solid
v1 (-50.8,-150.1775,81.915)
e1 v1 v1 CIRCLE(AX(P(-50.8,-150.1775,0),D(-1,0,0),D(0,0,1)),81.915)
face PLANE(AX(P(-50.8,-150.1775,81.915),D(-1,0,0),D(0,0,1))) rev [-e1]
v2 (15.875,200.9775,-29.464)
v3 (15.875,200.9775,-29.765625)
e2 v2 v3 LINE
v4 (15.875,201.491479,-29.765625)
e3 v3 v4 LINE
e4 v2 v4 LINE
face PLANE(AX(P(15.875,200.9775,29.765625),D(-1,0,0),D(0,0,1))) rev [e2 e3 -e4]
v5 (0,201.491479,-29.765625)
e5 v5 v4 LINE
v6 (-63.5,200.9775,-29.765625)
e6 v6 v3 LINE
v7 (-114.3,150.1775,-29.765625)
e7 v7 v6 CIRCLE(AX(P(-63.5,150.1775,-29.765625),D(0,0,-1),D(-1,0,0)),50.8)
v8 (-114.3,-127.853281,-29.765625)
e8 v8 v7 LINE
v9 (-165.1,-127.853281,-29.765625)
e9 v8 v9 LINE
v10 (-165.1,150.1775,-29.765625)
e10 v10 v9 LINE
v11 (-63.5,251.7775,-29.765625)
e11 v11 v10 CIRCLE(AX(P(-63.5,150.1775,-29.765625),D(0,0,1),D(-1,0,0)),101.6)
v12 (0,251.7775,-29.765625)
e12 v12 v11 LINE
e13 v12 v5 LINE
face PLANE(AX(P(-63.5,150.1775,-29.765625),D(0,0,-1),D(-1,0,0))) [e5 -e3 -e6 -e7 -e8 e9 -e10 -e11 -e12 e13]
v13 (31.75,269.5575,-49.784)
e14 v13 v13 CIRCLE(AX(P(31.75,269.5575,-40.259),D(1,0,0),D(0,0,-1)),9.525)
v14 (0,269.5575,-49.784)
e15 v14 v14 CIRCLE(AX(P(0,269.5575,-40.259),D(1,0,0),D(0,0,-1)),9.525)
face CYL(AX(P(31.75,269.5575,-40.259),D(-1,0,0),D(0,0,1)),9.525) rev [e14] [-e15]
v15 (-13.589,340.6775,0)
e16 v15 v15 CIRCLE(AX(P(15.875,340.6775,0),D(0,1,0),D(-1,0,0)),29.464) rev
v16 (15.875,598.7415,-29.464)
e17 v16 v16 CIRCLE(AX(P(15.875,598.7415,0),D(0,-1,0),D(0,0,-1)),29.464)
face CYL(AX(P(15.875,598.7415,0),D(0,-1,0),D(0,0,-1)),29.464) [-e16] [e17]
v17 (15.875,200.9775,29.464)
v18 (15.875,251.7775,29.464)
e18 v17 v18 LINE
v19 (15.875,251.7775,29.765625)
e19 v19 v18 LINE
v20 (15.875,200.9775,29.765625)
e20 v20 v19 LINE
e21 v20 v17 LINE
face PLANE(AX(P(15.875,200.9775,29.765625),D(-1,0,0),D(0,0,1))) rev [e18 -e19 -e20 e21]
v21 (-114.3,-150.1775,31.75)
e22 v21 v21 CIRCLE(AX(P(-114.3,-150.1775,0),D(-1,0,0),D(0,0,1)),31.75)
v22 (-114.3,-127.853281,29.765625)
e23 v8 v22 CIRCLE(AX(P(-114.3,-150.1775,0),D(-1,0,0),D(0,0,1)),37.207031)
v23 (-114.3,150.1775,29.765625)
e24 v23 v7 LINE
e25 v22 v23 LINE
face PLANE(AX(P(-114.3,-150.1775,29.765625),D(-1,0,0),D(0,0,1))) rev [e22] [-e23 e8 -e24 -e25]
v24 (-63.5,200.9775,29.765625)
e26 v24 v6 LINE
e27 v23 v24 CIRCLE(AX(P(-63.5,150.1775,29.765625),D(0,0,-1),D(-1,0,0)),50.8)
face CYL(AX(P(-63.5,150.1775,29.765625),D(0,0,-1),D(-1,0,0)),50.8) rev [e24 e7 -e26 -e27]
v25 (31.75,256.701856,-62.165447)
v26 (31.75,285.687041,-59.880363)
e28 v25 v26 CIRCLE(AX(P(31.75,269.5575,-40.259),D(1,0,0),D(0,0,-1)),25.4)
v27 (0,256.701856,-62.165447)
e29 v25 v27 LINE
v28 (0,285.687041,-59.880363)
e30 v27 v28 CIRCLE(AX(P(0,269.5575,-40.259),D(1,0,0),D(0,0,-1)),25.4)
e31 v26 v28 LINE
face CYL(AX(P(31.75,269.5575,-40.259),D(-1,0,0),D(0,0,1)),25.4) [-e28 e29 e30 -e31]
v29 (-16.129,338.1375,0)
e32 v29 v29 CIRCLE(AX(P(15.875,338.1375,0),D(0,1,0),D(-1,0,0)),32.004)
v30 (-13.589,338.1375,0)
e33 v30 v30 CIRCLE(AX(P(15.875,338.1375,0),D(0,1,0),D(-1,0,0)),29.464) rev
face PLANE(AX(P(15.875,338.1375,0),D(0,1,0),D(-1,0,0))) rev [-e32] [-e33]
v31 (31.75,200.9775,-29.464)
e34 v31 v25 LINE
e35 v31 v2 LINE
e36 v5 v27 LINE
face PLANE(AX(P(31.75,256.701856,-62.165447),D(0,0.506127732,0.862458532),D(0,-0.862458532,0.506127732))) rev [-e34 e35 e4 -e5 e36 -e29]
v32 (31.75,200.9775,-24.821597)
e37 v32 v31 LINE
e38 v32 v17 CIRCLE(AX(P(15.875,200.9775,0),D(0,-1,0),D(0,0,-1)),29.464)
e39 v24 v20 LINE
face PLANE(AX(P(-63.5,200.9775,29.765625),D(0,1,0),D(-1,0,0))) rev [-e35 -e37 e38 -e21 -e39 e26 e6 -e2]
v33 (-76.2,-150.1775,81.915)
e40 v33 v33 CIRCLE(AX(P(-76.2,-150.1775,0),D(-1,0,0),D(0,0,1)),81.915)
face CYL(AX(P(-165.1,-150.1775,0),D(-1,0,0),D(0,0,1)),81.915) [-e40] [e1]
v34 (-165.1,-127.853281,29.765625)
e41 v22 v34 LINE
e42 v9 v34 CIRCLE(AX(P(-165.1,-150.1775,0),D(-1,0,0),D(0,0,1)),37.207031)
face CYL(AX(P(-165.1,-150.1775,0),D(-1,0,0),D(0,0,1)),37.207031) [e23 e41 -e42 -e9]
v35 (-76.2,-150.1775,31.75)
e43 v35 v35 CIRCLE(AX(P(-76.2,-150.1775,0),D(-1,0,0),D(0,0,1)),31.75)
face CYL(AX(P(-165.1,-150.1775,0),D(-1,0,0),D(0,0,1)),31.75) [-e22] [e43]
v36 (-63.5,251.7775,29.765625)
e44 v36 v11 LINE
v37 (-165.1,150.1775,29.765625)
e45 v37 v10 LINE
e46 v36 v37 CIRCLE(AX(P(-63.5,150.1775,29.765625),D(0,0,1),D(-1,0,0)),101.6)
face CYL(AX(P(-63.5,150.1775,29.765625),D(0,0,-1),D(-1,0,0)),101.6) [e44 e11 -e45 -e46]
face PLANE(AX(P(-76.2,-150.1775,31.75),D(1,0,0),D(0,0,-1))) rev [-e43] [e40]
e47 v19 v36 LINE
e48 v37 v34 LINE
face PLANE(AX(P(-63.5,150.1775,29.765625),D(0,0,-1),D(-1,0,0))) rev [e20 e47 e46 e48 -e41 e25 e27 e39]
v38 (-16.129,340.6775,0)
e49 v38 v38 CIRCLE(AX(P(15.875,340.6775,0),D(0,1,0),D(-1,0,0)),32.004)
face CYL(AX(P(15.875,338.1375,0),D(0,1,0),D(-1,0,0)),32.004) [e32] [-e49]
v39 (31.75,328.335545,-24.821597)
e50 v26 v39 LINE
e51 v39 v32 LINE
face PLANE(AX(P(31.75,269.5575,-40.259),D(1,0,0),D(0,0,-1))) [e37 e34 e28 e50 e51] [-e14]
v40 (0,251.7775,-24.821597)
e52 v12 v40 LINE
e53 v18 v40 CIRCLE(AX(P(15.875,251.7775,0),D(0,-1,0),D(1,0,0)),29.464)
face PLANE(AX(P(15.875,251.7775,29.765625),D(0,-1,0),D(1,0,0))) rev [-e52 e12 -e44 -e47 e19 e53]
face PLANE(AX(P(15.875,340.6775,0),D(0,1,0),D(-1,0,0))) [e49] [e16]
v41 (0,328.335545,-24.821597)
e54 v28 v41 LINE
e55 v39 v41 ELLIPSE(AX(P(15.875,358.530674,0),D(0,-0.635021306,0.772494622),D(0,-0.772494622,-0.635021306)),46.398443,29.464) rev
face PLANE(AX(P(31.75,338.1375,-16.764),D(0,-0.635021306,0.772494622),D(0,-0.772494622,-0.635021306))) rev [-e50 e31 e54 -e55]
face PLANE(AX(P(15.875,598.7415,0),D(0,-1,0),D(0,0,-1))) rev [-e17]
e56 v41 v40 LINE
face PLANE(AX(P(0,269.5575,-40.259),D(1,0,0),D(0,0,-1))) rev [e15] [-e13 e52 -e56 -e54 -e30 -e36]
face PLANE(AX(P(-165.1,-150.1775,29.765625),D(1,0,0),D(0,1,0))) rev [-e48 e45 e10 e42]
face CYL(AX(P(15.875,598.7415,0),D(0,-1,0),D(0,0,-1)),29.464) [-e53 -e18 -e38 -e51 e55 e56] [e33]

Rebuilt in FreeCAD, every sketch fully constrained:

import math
import FreeCAD as App
import Part
import Sketcher
from FreeCAD import Vector
Q = App.Units.Quantity

doc = App.newDocument("Part")
body = doc.addObject("PartDesign::Body", "Body")

# Sketch on XY plane
sketch1 = body.newObject("Sketcher::SketchObject", "Sketch")
sketch1.AttachmentSupport = (doc.getObject("XY_Plane"), [""])
sketch1.MapMode = "FlatFace"
sketch1.addGeometry(Part.LineSegment(Vector(-114, -150, 0), Vector(-114, 150, 0)), False)
sketch1.addGeometry(Part.ArcOfCircle(Part.Circle(Vector(-63, 150, 0), Vector(0, 0, 1), 51), math.radians(90), math.radians(180)), False)
sketch1.addGeometry(Part.LineSegment(Vector(-64, 201, 0), Vector(16, 201, 0)), False)
sketch1.addGeometry(Part.LineSegment(Vector(16, 201, 0), Vector(16, 252, 0)), False)
sketch1.addGeometry(Part.LineSegment(Vector(16, 252, 0), Vector(-64, 252, 0)), False)
sketch1.addGeometry(Part.ArcOfCircle(Part.Circle(Vector(-64, 150, 0), Vector(0, 0, 1), 102), math.radians(90), math.radians(180)), False)
sketch1.addGeometry(Part.LineSegment(Vector(-165, 150, 0), Vector(-165, -150, 0)), False)
sketch1.addGeometry(Part.LineSegment(Vector(-165, -150, 0), Vector(-114, -150, 0)), False)
sketch1.addConstraint(Sketcher.Constraint("Tangent", 0, 2, 1, 2))
sketch1.addConstraint(Sketcher.Constraint("Tangent", 1, 1, 2, 1))
sketch1.addConstraint(Sketcher.Constraint("Coincident", 2, 2, 3, 1))
sketch1.addConstraint(Sketcher.Constraint("Coincident", 3, 2, 4, 1))
sketch1.addConstraint(Sketcher.Constraint("Tangent", 4, 2, 5, 1))
sketch1.addConstraint(Sketcher.Constraint("Tangent", 5, 2, 6, 1))
sketch1.addConstraint(Sketcher.Constraint("Coincident", 6, 2, 7, 1))
sketch1.addConstraint(Sketcher.Constraint("Coincident", 7, 2, 0, 1))
sketch1.addConstraint(Sketcher.Constraint("Vertical", 0))
sketch1.addConstraint(Sketcher.Constraint("Horizontal", 2))
sketch1.addConstraint(Sketcher.Constraint("Vertical", 3))
sketch1.addConstraint(Sketcher.Constraint("Horizontal", 4))
sketch1.addConstraint(Sketcher.Constraint("Vertical", 6))
sketch1.addConstraint(Sketcher.Constraint("Horizontal", 7))
sketch1.addConstraint(Sketcher.Constraint("Coincident", 5, 3, 1, 3))
sketch1.addConstraint(Sketcher.Constraint("Radius", 1, Q("2 in")))
sketch1.addConstraint(Sketcher.Constraint("Radius", 5, Q("4 in")))
sketch1.addConstraint(Sketcher.Constraint("DistanceX", 1, 3, -1, 1, Q("2.5 in")))
sketch1.addConstraint(Sketcher.Constraint("DistanceX", 2, 1, 2, 2, Q("3.125 in")))
sketch1.addConstraint(Sketcher.Constraint("DistanceY", 0, 1, 0, 2, Q("11.825 in")))
sketch1.addConstraint(Sketcher.Constraint("DistanceY", -1, 1, 1, 3, Q("5.9125 in")))
pad1 = body.newObject("PartDesign::Pad", "Pad")
pad1.Profile = sketch1
pad1.Length = Q("2.34375 in")
pad1.Midplane = True

# Sketch on XZ plane
sketch2 = body.newObject("Sketcher::SketchObject", "Sketch001")
sketch2.AttachmentSupport = (doc.getObject("XZ_Plane"), [""])
sketch2.MapMode = "FlatFace"
sketch2.AttachmentOffset = App.Placement(Vector(0, 0, 5.9125 * 25.4), App.Rotation())
sketch2.addGeometry(Part.LineSegment(Vector(-165, 0, 0), Vector(-51, 0, 0)), False)
sketch2.addGeometry(Part.LineSegment(Vector(-51, 0, 0), Vector(-51, 82, 0)), False)
sketch2.addGeometry(Part.LineSegment(Vector(-51, 82, 0), Vector(-76, 82, 0)), False)
sketch2.addGeometry(Part.LineSegment(Vector(-76, 82, 0), Vector(-76, 32, 0)), False)
sketch2.addGeometry(Part.LineSegment(Vector(-76, 32, 0), Vector(-114, 32, 0)), False)
sketch2.addGeometry(Part.LineSegment(Vector(-114, 32, 0), Vector(-114, 37, 0)), False)
sketch2.addGeometry(Part.LineSegment(Vector(-114, 37, 0), Vector(-165, 37, 0)), False)
sketch2.addGeometry(Part.LineSegment(Vector(-165, 37, 0), Vector(-165, 0, 0)), False)
sketch2.addConstraint(Sketcher.Constraint("Coincident", 0, 2, 1, 1))
sketch2.addConstraint(Sketcher.Constraint("Coincident", 1, 2, 2, 1))
sketch2.addConstraint(Sketcher.Constraint("Coincident", 2, 2, 3, 1))
sketch2.addConstraint(Sketcher.Constraint("Coincident", 3, 2, 4, 1))
sketch2.addConstraint(Sketcher.Constraint("Coincident", 4, 2, 5, 1))
sketch2.addConstraint(Sketcher.Constraint("Coincident", 5, 2, 6, 1))
sketch2.addConstraint(Sketcher.Constraint("Coincident", 6, 2, 7, 1))
sketch2.addConstraint(Sketcher.Constraint("Coincident", 7, 2, 0, 1))
sketch2.addConstraint(Sketcher.Constraint("Horizontal", 0))
sketch2.addConstraint(Sketcher.Constraint("Vertical", 1))
sketch2.addConstraint(Sketcher.Constraint("Horizontal", 2))
sketch2.addConstraint(Sketcher.Constraint("Vertical", 3))
sketch2.addConstraint(Sketcher.Constraint("Horizontal", 4))
sketch2.addConstraint(Sketcher.Constraint("Vertical", 5))
sketch2.addConstraint(Sketcher.Constraint("Horizontal", 6))
sketch2.addConstraint(Sketcher.Constraint("Vertical", 7))
sketch2.addConstraint(Sketcher.Constraint("PointOnObject", 0, 2, -1))
sketch2.addConstraint(Sketcher.Constraint("DistanceX", 2, 2, 2, 1, Q("1 in")))
sketch2.addConstraint(Sketcher.Constraint("DistanceX", 6, 2, 6, 1, Q("2 in")))
sketch2.addConstraint(Sketcher.Constraint("DistanceX", 0, 1, 0, 2, Q("4.5 in")))
sketch2.addConstraint(Sketcher.Constraint("DistanceX", 0, 2, -1, 1, Q("2 in")))
sketch2.addConstraint(Sketcher.Constraint("DistanceY", 1, 1, 1, 2, Q("3.225 in")))
sketch2.addConstraint(Sketcher.Constraint("DistanceY", 3, 2, 3, 1, Q("1.975 in")))
sketch2.addConstraint(Sketcher.Constraint("DistanceY", 5, 1, 5, 2, 5.457031))
revolution = body.newObject("PartDesign::Revolution", "Revolution")
revolution.Profile = sketch2
revolution.ReferenceAxis = (sketch2, ["H_Axis"])
revolution.Angle = 360

# Sketch on XZ plane
sketch3 = body.newObject("Sketcher::SketchObject", "Sketch002")
sketch3.AttachmentSupport = (doc.getObject("XZ_Plane"), [""])
sketch3.MapMode = "FlatFace"
sketch3.AttachmentOffset = App.Placement(Vector(0, 0, -7.9125 * 25.4), App.Rotation())
sketch3.addGeometry(Part.Circle(Vector(16, 0, 0), Vector(0, 0, 1), 29), False)
sketch3.addConstraint(Sketcher.Constraint("PointOnObject", 0, 3, -1))
sketch3.addConstraint(Sketcher.Constraint("Diameter", 0, Q("2.32 in")))
sketch3.addConstraint(Sketcher.Constraint("DistanceX", -1, 1, 0, 3, Q("0.625 in")))
pad2 = body.newObject("PartDesign::Pad", "Pad001")
pad2.Profile = sketch3
pad2.Length = Q("15.66 in")
pad2.Reversed = True

# Sketch on XZ plane
sketch4 = body.newObject("Sketcher::SketchObject", "Sketch003")
sketch4.AttachmentSupport = (doc.getObject("XZ_Plane"), [""])
sketch4.MapMode = "FlatFace"
sketch4.AttachmentOffset = App.Placement(Vector(0, 0, -13.4125 * 25.4), App.Rotation())
sketch4.addGeometry(Part.Circle(Vector(16, 0, 0), Vector(0, 0, 1), 32), False)
sketch4.addConstraint(Sketcher.Constraint("PointOnObject", 0, 3, -1))
sketch4.addConstraint(Sketcher.Constraint("Diameter", 0, Q("2.52 in")))
sketch4.addConstraint(Sketcher.Constraint("DistanceX", -1, 1, 0, 3, Q("0.625 in")))
pad3 = body.newObject("PartDesign::Pad", "Pad002")
pad3.Profile = sketch4
pad3.Length = Q("0.1 in")

# Sketch on YZ plane
sketch5 = body.newObject("Sketcher::SketchObject", "Sketch004")
sketch5.AttachmentSupport = (doc.getObject("YZ_Plane"), [""])
sketch5.MapMode = "FlatFace"
sketch5.AttachmentOffset = App.Placement(Vector(0, 0, 0.625 * 25.4), App.Rotation())
sketch5.addGeometry(Part.LineSegment(Vector(286, -60, 0), Vector(338, -17, 0)), False)
sketch5.addGeometry(Part.LineSegment(Vector(338, -17, 0), Vector(201, -17, 0)), False)
sketch5.addGeometry(Part.LineSegment(Vector(201, -17, 0), Vector(201, -29, 0)), False)
sketch5.addGeometry(Part.LineSegment(Vector(201, -29, 0), Vector(257, -62, 0)), False)
sketch5.addGeometry(Part.ArcOfCircle(Part.Circle(Vector(270, -40, 0), Vector(0, 0, 1), 25), math.radians(-120), math.radians(-51)), False)
sketch5.addGeometry(Part.Circle(Vector(270, -40, 0), Vector(0, 0, 1), 10), False)
sketch5.addConstraint(Sketcher.Constraint("Coincident", 0, 2, 1, 1))
sketch5.addConstraint(Sketcher.Constraint("Coincident", 1, 2, 2, 1))
sketch5.addConstraint(Sketcher.Constraint("Coincident", 2, 2, 3, 1))
sketch5.addConstraint(Sketcher.Constraint("Tangent", 3, 2, 4, 1))
sketch5.addConstraint(Sketcher.Constraint("Tangent", 4, 2, 0, 1))
sketch5.addConstraint(Sketcher.Constraint("Horizontal", 1))
sketch5.addConstraint(Sketcher.Constraint("Vertical", 2))
sketch5.addConstraint(Sketcher.Constraint("Coincident", 5, 3, 4, 3))
sketch5.addConstraint(Sketcher.Constraint("Radius", 4, Q("1 in")))
sketch5.addConstraint(Sketcher.Constraint("Diameter", 5, Q("0.75 in")))
sketch5.addConstraint(Sketcher.Constraint("DistanceX", 1, 2, 1, 1, Q("5.4 in")))
sketch5.addConstraint(Sketcher.Constraint("DistanceY", 2, 2, 2, 1, Q("0.5 in")))
sketch5.addConstraint(Sketcher.Constraint("DistanceX", 4, 3, 0, 2, Q("2.7 in")))
sketch5.addConstraint(Sketcher.Constraint("DistanceY", 0, 2, -1, 1, Q("0.66 in")))
sketch5.addConstraint(Sketcher.Constraint("DistanceY", 4, 3, -1, 1, Q("1.585 in")))
sketch5.addConstraint(Sketcher.Constraint("DistanceX", -1, 1, 0, 2, Q("13.3125 in")))
pad4 = body.newObject("PartDesign::Pad", "Pad003")
pad4.Profile = sketch5
pad4.Length = Q("1.25 in")
pad4.Midplane = True

doc.recompute()
